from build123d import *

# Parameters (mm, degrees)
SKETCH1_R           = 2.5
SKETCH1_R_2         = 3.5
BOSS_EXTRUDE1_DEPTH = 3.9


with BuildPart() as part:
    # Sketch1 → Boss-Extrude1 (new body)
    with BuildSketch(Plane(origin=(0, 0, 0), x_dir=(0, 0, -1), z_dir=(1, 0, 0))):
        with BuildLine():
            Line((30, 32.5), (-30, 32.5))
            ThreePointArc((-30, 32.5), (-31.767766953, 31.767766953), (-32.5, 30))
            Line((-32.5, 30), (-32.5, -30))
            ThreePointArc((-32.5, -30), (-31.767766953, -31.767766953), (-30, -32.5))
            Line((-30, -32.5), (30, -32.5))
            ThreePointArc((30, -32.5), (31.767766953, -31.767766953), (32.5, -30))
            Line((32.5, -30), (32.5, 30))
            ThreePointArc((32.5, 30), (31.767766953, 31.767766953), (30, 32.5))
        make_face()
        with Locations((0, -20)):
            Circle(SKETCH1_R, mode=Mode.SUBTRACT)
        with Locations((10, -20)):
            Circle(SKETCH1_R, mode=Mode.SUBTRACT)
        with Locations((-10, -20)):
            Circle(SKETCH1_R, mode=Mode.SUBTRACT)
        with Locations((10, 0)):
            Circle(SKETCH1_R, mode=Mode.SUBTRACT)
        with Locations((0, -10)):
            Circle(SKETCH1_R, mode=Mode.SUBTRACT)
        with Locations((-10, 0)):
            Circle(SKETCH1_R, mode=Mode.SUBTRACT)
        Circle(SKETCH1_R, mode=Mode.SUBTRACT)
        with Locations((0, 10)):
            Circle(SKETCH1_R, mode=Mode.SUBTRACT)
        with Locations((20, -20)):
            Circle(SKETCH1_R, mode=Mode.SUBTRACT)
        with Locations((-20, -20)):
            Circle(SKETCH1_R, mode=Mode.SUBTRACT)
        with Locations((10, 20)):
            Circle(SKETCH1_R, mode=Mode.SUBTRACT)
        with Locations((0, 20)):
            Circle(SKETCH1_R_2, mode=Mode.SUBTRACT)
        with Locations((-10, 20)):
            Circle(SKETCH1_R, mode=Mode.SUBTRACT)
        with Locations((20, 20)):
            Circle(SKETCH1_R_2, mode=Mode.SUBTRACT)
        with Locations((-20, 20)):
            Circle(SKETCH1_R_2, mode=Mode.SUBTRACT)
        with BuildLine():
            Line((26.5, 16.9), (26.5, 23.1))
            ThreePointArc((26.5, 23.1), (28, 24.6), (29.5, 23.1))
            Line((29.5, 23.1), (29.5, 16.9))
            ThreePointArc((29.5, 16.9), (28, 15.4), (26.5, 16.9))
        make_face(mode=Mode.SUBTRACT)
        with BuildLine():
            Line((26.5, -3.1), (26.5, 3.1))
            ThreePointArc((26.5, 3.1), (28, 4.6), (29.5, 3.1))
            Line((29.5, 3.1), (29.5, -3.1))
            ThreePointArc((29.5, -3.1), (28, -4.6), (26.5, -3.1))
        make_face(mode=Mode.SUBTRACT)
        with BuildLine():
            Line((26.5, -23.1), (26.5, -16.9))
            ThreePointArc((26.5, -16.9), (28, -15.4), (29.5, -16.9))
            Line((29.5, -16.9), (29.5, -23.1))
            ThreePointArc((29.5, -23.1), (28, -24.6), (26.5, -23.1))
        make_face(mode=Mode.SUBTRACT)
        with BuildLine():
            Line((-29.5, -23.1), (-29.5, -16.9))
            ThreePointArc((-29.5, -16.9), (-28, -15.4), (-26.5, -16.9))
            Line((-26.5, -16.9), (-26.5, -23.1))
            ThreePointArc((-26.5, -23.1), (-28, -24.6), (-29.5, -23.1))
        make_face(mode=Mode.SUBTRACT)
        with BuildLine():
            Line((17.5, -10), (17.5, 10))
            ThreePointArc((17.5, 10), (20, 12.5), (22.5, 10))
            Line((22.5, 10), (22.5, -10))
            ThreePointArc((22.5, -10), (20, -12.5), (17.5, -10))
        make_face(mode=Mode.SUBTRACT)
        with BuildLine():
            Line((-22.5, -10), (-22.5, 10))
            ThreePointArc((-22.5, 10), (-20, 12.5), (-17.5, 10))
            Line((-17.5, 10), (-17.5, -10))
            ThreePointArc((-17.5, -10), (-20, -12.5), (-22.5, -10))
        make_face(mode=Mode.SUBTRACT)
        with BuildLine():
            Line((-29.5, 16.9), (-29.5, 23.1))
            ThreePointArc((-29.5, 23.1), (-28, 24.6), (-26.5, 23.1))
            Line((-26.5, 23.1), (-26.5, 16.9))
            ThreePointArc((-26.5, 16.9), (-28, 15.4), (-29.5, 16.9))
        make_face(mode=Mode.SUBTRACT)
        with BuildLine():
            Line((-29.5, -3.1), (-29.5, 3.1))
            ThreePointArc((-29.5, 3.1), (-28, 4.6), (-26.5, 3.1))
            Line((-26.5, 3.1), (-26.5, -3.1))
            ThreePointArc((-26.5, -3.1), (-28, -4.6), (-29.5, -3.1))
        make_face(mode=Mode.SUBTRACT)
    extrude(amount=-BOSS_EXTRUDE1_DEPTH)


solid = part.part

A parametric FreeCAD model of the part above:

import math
import FreeCAD as App
import Part
import Sketcher

V = App.Vector

doc = App.newDocument("Part")
body = doc.addObject("PartDesign::Body", "Body")

# Sketch on YZ plane
sketch1 = body.newObject("Sketcher::SketchObject", "Sketch")
sketch1.AttachmentSupport = (doc.getObject("YZ_Plane"), [""])
sketch1.MapMode = "FlatFace"
sketch1.addGeometry(Part.LineSegment(V(32.5, -30, 0), V(32.5, 30, 0)), False)
sketch1.addGeometry(Part.ArcOfCircle(Part.Circle(V(30, 30, 0), V(0, 0, 1), 2.5), math.radians(0), math.radians(90)), False)
sketch1.addGeometry(Part.LineSegment(V(30, 32.5, 0), V(-30, 32.5, 0)), False)
sketch1.addGeometry(Part.ArcOfCircle(Part.Circle(V(-30, 30, 0), V(0, 0, 1), 2.5), math.radians(90), math.radians(180)), False)
sketch1.addGeometry(Part.LineSegment(V(-32.5, 30, 0), V(-32.5, -30, 0)), False)
sketch1.addGeometry(Part.ArcOfCircle(Part.Circle(V(-30, -30, 0), V(0, 0, 1), 2.5), math.radians(180), math.radians(270)), False)
sketch1.addGeometry(Part.LineSegment(V(-30, -32.5, 0), V(30, -32.5, 0)), False)
sketch1.addGeometry(Part.ArcOfCircle(Part.Circle(V(30, -30, 0), V(0, 0, 1), 2.5), math.radians(-90), math.radians(0)), False)
sketch1.addGeometry(Part.ArcOfCircle(Part.Circle(V(-23.1, 28, 0), V(0, 0, 1), 1.5), math.radians(90), math.radians(270)), False)
sketch1.addGeometry(Part.LineSegment(V(-23.1, 29.5, 0), V(-16.9, 29.5, 0)), False)
sketch1.addGeometry(Part.ArcOfCircle(Part.Circle(V(-16.9, 28, 0), V(0, 0, 1), 1.5), math.radians(-90), math.radians(90)), False)
sketch1.addGeometry(Part.LineSegment(V(-16.9, 26.5, 0), V(-23.1, 26.5, 0)), False)
sketch1.addGeometry(Part.Circle(V(-20, 20, 0), V(0, 0, 1), 2.5), False)
sketch1.addGeometry(Part.Circle(V(-20, 10, 0), V(0, 0, 1), 2.5), False)
sketch1.addGeometry(Part.Circle(V(-20, 0, 0), V(0, 0, 1), 2.5), False)
sketch1.addGeometry(Part.Circle(V(-20, -10, 0), V(0, 0, 1), 2.5), False)
sketch1.addGeometry(Part.Circle(V(-20, -20, 0), V(0, 0, 1), 2.5), False)
sketch1.addGeometry(Part.ArcOfCircle(Part.Circle(V(-23.1, -28, 0), V(0, 0, 1), 1.5), math.radians(90), math.radians(270)), False)
sketch1.addGeometry(Part.LineSegment(V(-23.1, -26.5, 0), V(-16.9, -26.5, 0)), False)
sketch1.addGeometry(Part.ArcOfCircle(Part.Circle(V(-16.9, -28, 0), V(0, 0, 1), 1.5), math.radians(-90), math.radians(90)), False)
sketch1.addGeometry(Part.LineSegment(V(-16.9, -29.5, 0), V(-23.1, -29.5, 0)), False)
sketch1.addGeometry(Part.Circle(V(-10, 0, 0), V(0, 0, 1), 2.5), False)
sketch1.addGeometry(Part.ArcOfCircle(Part.Circle(V(-3.1, 28, 0), V(0, 0, 1), 1.5), math.radians(90), math.radians(270)), False)
sketch1.addGeometry(Part.LineSegment(V(-3.1, 29.5, 0), V(3.1, 29.5, 0)), False)
sketch1.addGeometry(Part.ArcOfCircle(Part.Circle(V(3.1, 28, 0), V(0, 0, 1), 1.5), math.radians(-90), math.radians(90)), False)
sketch1.addGeometry(Part.LineSegment(V(3.1, 26.5, 0), V(-3.1, 26.5, 0)), False)
sketch1.addGeometry(Part.ArcOfCircle(Part.Circle(V(-10, 20, 0), V(0, 0, 1), 2.5), math.radians(90), math.radians(270)), False)
sketch1.addGeometry(Part.LineSegment(V(-10, 22.5, 0), V(10, 22.5, 0)), False)
sketch1.addGeometry(Part.ArcOfCircle(Part.Circle(V(10, 20, 0), V(0, 0, 1), 2.5), math.radians(-90), math.radians(90)), False)
sketch1.addGeometry(Part.LineSegment(V(10, 17.5, 0), V(-10, 17.5, 0)), False)
sketch1.addGeometry(Part.Circle(V(0, 10, 0), V(0, 0, 1), 2.5), False)
sketch1.addGeometry(Part.ArcOfCircle(Part.Circle(V(16.9, 28, 0), V(0, 0, 1), 1.5), math.radians(90), math.radians(270)), False)
sketch1.addGeometry(Part.LineSegment(V(16.9, 29.5, 0), V(23.1, 29.5, 0)), False)
sketch1.addGeometry(Part.ArcOfCircle(Part.Circle(V(23.1, 28, 0), V(0, 0, 1), 1.5), math.radians(-90), math.radians(90)), False)
sketch1.addGeometry(Part.LineSegment(V(23.1, 26.5, 0), V(16.9, 26.5, 0)), False)
sketch1.addGeometry(Part.Circle(V(20, 20, 0), V(0, 0, 1), 3.5), False)
sketch1.addGeometry(Part.Circle(V(20, 10, 0), V(0, 0, 1), 2.5), False)
sketch1.addGeometry(Part.Circle(V(0, 0, 0), V(0, 0, 1), 2.5), False)
sketch1.addGeometry(Part.Circle(V(0, -10, 0), V(0, 0, 1), 2.5), False)
sketch1.addGeometry(Part.Circle(V(10, 0, 0), V(0, 0, 1), 2.5), False)
sketch1.addGeometry(Part.ArcOfCircle(Part.Circle(V(-10, -20, 0), V(0, 0, 1), 2.5), math.radians(90), math.radians(270)), False)
sketch1.addGeometry(Part.LineSegment(V(-10, -17.5, 0), V(10, -17.5, 0)), False)
sketch1.addGeometry(Part.ArcOfCircle(Part.Circle(V(10, -20, 0), V(0, 0, 1), 2.5), math.radians(-90), math.radians(90)), False)
sketch1.addGeometry(Part.LineSegment(V(10, -22.5, 0), V(-10, -22.5, 0)), False)
sketch1.addGeometry(Part.ArcOfCircle(Part.Circle(V(-3.1, -28, 0), V(0, 0, 1), 1.5), math.radians(90), math.radians(270)), False)
sketch1.addGeometry(Part.LineSegment(V(-3.1, -26.5, 0), V(3.1, -26.5, 0)), False)
sketch1.addGeometry(Part.ArcOfCircle(Part.Circle(V(3.1, -28, 0), V(0, 0, 1), 1.5), math.radians(-90), math.radians(90)), False)
sketch1.addGeometry(Part.LineSegment(V(3.1, -29.5, 0), V(-3.1, -29.5, 0)), False)
sketch1.addGeometry(Part.Circle(V(20, 0, 0), V(0, 0, 1), 3.5), False)
sketch1.addGeometry(Part.Circle(V(20, -10, 0), V(0, 0, 1), 2.5), False)
sketch1.addGeometry(Part.Circle(V(20, -20, 0), V(0, 0, 1), 3.5), False)
sketch1.addGeometry(Part.ArcOfCircle(Part.Circle(V(16.9, -28, 0), V(0, 0, 1), 1.5), math.radians(90), math.radians(270)), False)
sketch1.addGeometry(Part.LineSegment(V(16.9, -26.5, 0), V(23.1, -26.5, 0)), False)
sketch1.addGeometry(Part.ArcOfCircle(Part.Circle(V(23.1, -28, 0), V(0, 0, 1), 1.5), math.radians(-90), math.radians(90)), False)
sketch1.addGeometry(Part.LineSegment(V(23.1, -29.5, 0), V(16.9, -29.5, 0)), False)
sketch1.addConstraint(Sketcher.Constraint("Tangent", 0, 2, 1, 1))
sketch1.addConstraint(Sketcher.Constraint("Tangent", 1, 2, 2, 1))
sketch1.addConstraint(Sketcher.Constraint("Tangent", 2, 2, 3, 1))
sketch1.addConstraint(Sketcher.Constraint("Tangent", 3, 2, 4, 1))
sketch1.addConstraint(Sketcher.Constraint("Tangent", 4, 2, 5, 1))
sketch1.addConstraint(Sketcher.Constraint("Tangent", 5, 2, 6, 1))
sketch1.addConstraint(Sketcher.Constraint("Tangent", 6, 2, 7, 1))
sketch1.addConstraint(Sketcher.Constraint("Tangent", 7, 2, 0, 1))
sketch1.addConstraint(Sketcher.Constraint("Tangent", 8, 1, 9, 1))
sketch1.addConstraint(Sketcher.Constraint("Tangent", 9, 2, 10, 2))
sketch1.addConstraint(Sketcher.Constraint("Tangent", 10, 1, 11, 1))
sketch1.addConstraint(Sketcher.Constraint("Tangent", 11, 2, 8, 2))
sketch1.addConstraint(Sketcher.Constraint("Tangent", 17, 1, 18, 1))
sketch1.addConstraint(Sketcher.Constraint("Tangent", 18, 2, 19, 2))
sketch1.addConstraint(Sketcher.Constraint("Tangent", 19, 1, 20, 1))
sketch1.addConstraint(Sketcher.Constraint("Tangent", 20, 2, 17, 2))
sketch1.addConstraint(Sketcher.Constraint("Tangent", 22, 1, 23, 1))
sketch1.addConstraint(Sketcher.Constraint("Tangent", 23, 2, 24, 2))
sketch1.addConstraint(Sketcher.Constraint("Tangent", 24, 1, 25, 1))
sketch1.addConstraint(Sketcher.Constraint("Tangent", 25, 2, 22, 2))
sketch1.addConstraint(Sketcher.Constraint("Tangent", 26, 1, 27, 1))
sketch1.addConstraint(Sketcher.Constraint("Tangent", 27, 2, 28, 2))
sketch1.addConstraint(Sketcher.Constraint("Tangent", 28, 1, 29, 1))
sketch1.addConstraint(Sketcher.Constraint("Tangent", 29, 2, 26, 2))
sketch1.addConstraint(Sketcher.Constraint("Tangent", 31, 1, 32, 1))
sketch1.addConstraint(Sketcher.Constraint("Tangent", 32, 2, 33, 2))
sketch1.addConstraint(Sketcher.Constraint("Tangent", 33, 1, 34, 1))
sketch1.addConstraint(Sketcher.Constraint("Tangent", 34, 2, 31, 2))
sketch1.addConstraint(Sketcher.Constraint("Tangent", 40, 1, 41, 1))
sketch1.addConstraint(Sketcher.Constraint("Tangent", 41, 2, 42, 2))
sketch1.addConstraint(Sketcher.Constraint("Tangent", 42, 1, 43, 1))
sketch1.addConstraint(Sketcher.Constraint("Tangent", 43, 2, 40, 2))
sketch1.addConstraint(Sketcher.Constraint("Tangent", 44, 1, 45, 1))
sketch1.addConstraint(Sketcher.Constraint("Tangent", 45, 2, 46, 2))
sketch1.addConstraint(Sketcher.Constraint("Tangent", 46, 1, 47, 1))
sketch1.addConstraint(Sketcher.Constraint("Tangent", 47, 2, 44, 2))
sketch1.addConstraint(Sketcher.Constraint("Tangent", 51, 1, 52, 1))
sketch1.addConstraint(Sketcher.Constraint("Tangent", 52, 2, 53, 2))
sketch1.addConstraint(Sketcher.Constraint("Tangent", 53, 1, 54, 1))
sketch1.addConstraint(Sketcher.Constraint("Tangent", 54, 2, 51, 2))
sketch1.addConstraint(Sketcher.Constraint("Vertical", 0))
sketch1.addConstraint(Sketcher.Constraint("Horizontal", 2))
sketch1.addConstraint(Sketcher.Constraint("Vertical", 4))
sketch1.addConstraint(Sketcher.Constraint("Horizontal", 6))
sketch1.addConstraint(Sketcher.Constraint("Horizontal", 9))
sketch1.addConstraint(Sketcher.Constraint("Horizontal", 11))
sketch1.addConstraint(Sketcher.Constraint("Horizontal", 18))
sketch1.addConstraint(Sketcher.Constraint("Horizontal", 20))
sketch1.addConstraint(Sketcher.Constraint("Horizontal", 23))
sketch1.addConstraint(Sketcher.Constraint("Horizontal", 25))
sketch1.addConstraint(Sketcher.Constraint("Horizontal", 27))
sketch1.addConstraint(Sketcher.Constraint("Horizontal", 29))
sketch1.addConstraint(Sketcher.Constraint("Horizontal", 32))
sketch1.addConstraint(Sketcher.Constraint("Horizontal", 34))
sketch1.addConstraint(Sketcher.Constraint("Horizontal", 41))
sketch1.addConstraint(Sketcher.Constraint("Horizontal", 43))
sketch1.addConstraint(Sketcher.Constraint("Horizontal", 45))
sketch1.addConstraint(Sketcher.Constraint("Horizontal", 47))
sketch1.addConstraint(Sketcher.Constraint("Horizontal", 52))
sketch1.addConstraint(Sketcher.Constraint("Horizontal", 54))
sketch1.addConstraint(Sketcher.Constraint("Coincident", 37, 3, -1, 1))
sketch1.addConstraint(Sketcher.Constraint("Equal", 1, 3))
sketch1.addConstraint(Sketcher.Constraint("Equal", 3, 5))
sketch1.addConstraint(Sketcher.Constraint("Equal", 5, 7))
sketch1.addConstraint(Sketcher.Constraint("Equal", 7, 12))
sketch1.addConstraint(Sketcher.Constraint("Equal", 12, 13))
sketch1.addConstraint(Sketcher.Constraint("Equal", 13, 14))
sketch1.addConstraint(Sketcher.Constraint("Equal", 14, 15))
sketch1.addConstraint(Sketcher.Constraint("Equal", 15, 16))
sketch1.addConstraint(Sketcher.Constraint("Equal", 10, 17))
sketch1.addConstraint(Sketcher.Constraint("Equal", 16, 21))
sketch1.addConstraint(Sketcher.Constraint("Equal", 19, 22))
sketch1.addConstraint(Sketcher.Constraint("Equal", 21, 26))
sketch1.addConstraint(Sketcher.Constraint("Equal", 28, 30))
sketch1.addConstraint(Sketcher.Constraint("Equal", 24, 31))
sketch1.addConstraint(Sketcher.Constraint("Equal", 30, 36))
sketch1.addConstraint(Sketcher.Constraint("Equal", 36, 37))
sketch1.addConstraint(Sketcher.Constraint("Equal", 37, 38))
sketch1.addConstraint(Sketcher.Constraint("Equal", 38, 39))
sketch1.addConstraint(Sketcher.Constraint("Equal", 39, 40))
sketch1.addConstraint(Sketcher.Constraint("Equal", 33, 44))
sketch1.addConstraint(Sketcher.Constraint("Equal", 35, 48))
sketch1.addConstraint(Sketcher.Constraint("Equal", 42, 49))
sketch1.addConstraint(Sketcher.Constraint("Equal", 48, 50))
sketch1.addConstraint(Sketcher.Constraint("Equal", 46, 51))
sketch1.addConstraint(Sketcher.Constraint("Symmetric", 1, 3, 5, 3, -1, 1))
sketch1.addConstraint(Sketcher.Constraint("Symmetric", 19, 3, 31, 3, -1, 1))
sketch1.addConstraint(Sketcher.Constraint("Symmetric", 16, 3, 35, 3, -1, 1))
sketch1.addConstraint(Sketcher.Constraint("Symmetric", 15, 3, 36, 3, -1, 1))
sketch1.addConstraint(Sketcher.Constraint("Symmetric", 30, 3, 38, 3, -1, 1))
sketch1.addConstraint(Sketcher.Constraint("Symmetric", 21, 3, 39, 3, -1, 1))
sketch1.addConstraint(Sketcher.Constraint("Symmetric", 28, 3, 40, 3, -1, 1))
sketch1.addConstraint(Sketcher.Constraint("Symmetric", 24, 3, 44, 3, -1, 1))
sketch1.addConstraint(Sketcher.Constraint("Symmetric", 14, 3, 48, 3, -1, 1))
sketch1.addConstraint(Sketcher.Constraint("Symmetric", 13, 3, 49, 3, -1, 1))
sketch1.addConstraint(Sketcher.Constraint("Symmetric", 12, 3, 50, 3, -1, 1))
sketch1.addConstraint(Sketcher.Constraint("Symmetric", 10, 3, 51, 3, -1, 1))
sketch1.addConstraint(Sketcher.Constraint("Symmetric", 10, 3, 31, 3, -2))
sketch1.addConstraint(Sketcher.Constraint("Symmetric", 12, 3, 35, 3, -2))
sketch1.addConstraint(Sketcher.Constraint("Symmetric", 13, 3, 36, 3, -2))
sketch1.addConstraint(Sketcher.Constraint("PointOnObject", 14, 3, -1))
sketch1.addConstraint(Sketcher.Constraint("PointOnObject", 21, 3, -1))
sketch1.addConstraint(Sketcher.Constraint("PointOnObject", 30, 3, -2))
sketch1.addConstraint(Sketcher.Constraint("Horizontal", 10, 3, 22, 3))
sketch1.addConstraint(Sketcher.Constraint("Horizontal", 12, 3, 26, 3))
sketch1.addConstraint(Sketcher.Constraint("Horizontal", 13, 3, 30, 3))
sketch1.addConstraint(Sketcher.Constraint("Vertical", 12, 3, 13, 3))
sketch1.addConstraint(Sketcher.Constraint("Vertical", 13, 3, 14, 3))
sketch1.addConstraint(Sketcher.Constraint("Vertical", 8, 3, 17, 3))
sketch1.addConstraint(Sketcher.Constraint("Vertical", 21, 3, 26, 3))
sketch1.addConstraint(Sketcher.Constraint("Vertical", 28, 3, 39, 3))
sketch1.addConstraint(Sketcher.Constraint("Vertical", 39, 3, 42, 3))
sketch1.addConstraint(Sketcher.Constraint("Vertical", 22, 3, 44, 3))
sketch1.addConstraint(Sketcher.Constraint("Vertical", 24, 3, 46, 3))
sketch1.addConstraint(Sketcher.Constraint("Vertical", 33, 3, 53, 3))
sketch1.addConstraint(Sketcher.Constraint("Equal", 20, 23))
sketch1.addConstraint(Sketcher.Constraint("Equal", 25, 32))
sketch1.addConstraint(Sketcher.Constraint("Equal", 6, 0))
sketch1.addConstraint(Sketcher.Constraint("Diameter", 12, 5.0))
sketch1.addConstraint(Sketcher.Constraint("Diameter", 35, 7.0))
sketch1.addConstraint(Sketcher.Constraint("Radius", 8, 1.5))
sketch1.addConstraint(Sketcher.Constraint("DistanceX", 2, 2, 2, 1, 60.0))
sketch1.addConstraint(Sketcher.Constraint("DistanceX", 27, 1, 27, 2, 20.0))
sketch1.addConstraint(Sketcher.Constraint("DistanceX", 9, 1, 9, 2, 6.2))
sketch1.addConstraint(Sketcher.Constraint("DistanceY", -1, 1, 8, 3, 28.0))
sketch1.addConstraint(Sketcher.Constraint("DistanceX", 12, 3, -1, 1, 20.0))
sketch1.addConstraint(Sketcher.Constraint("DistanceY", -1, 1, 12, 3, 20.0))
sketch1.addConstraint(Sketcher.Constraint("DistanceY", -1, 1, 13, 3, 10.0))
sketch1.addConstraint(Sketcher.Constraint("DistanceX", 8, 3, -1, 1, 23.1))
pad1 = body.newObject("PartDesign::Pad", "Pad")
pad1.Profile = sketch1
pad1.Length = 3.9
pad1.Reversed = True

doc.recompute()
